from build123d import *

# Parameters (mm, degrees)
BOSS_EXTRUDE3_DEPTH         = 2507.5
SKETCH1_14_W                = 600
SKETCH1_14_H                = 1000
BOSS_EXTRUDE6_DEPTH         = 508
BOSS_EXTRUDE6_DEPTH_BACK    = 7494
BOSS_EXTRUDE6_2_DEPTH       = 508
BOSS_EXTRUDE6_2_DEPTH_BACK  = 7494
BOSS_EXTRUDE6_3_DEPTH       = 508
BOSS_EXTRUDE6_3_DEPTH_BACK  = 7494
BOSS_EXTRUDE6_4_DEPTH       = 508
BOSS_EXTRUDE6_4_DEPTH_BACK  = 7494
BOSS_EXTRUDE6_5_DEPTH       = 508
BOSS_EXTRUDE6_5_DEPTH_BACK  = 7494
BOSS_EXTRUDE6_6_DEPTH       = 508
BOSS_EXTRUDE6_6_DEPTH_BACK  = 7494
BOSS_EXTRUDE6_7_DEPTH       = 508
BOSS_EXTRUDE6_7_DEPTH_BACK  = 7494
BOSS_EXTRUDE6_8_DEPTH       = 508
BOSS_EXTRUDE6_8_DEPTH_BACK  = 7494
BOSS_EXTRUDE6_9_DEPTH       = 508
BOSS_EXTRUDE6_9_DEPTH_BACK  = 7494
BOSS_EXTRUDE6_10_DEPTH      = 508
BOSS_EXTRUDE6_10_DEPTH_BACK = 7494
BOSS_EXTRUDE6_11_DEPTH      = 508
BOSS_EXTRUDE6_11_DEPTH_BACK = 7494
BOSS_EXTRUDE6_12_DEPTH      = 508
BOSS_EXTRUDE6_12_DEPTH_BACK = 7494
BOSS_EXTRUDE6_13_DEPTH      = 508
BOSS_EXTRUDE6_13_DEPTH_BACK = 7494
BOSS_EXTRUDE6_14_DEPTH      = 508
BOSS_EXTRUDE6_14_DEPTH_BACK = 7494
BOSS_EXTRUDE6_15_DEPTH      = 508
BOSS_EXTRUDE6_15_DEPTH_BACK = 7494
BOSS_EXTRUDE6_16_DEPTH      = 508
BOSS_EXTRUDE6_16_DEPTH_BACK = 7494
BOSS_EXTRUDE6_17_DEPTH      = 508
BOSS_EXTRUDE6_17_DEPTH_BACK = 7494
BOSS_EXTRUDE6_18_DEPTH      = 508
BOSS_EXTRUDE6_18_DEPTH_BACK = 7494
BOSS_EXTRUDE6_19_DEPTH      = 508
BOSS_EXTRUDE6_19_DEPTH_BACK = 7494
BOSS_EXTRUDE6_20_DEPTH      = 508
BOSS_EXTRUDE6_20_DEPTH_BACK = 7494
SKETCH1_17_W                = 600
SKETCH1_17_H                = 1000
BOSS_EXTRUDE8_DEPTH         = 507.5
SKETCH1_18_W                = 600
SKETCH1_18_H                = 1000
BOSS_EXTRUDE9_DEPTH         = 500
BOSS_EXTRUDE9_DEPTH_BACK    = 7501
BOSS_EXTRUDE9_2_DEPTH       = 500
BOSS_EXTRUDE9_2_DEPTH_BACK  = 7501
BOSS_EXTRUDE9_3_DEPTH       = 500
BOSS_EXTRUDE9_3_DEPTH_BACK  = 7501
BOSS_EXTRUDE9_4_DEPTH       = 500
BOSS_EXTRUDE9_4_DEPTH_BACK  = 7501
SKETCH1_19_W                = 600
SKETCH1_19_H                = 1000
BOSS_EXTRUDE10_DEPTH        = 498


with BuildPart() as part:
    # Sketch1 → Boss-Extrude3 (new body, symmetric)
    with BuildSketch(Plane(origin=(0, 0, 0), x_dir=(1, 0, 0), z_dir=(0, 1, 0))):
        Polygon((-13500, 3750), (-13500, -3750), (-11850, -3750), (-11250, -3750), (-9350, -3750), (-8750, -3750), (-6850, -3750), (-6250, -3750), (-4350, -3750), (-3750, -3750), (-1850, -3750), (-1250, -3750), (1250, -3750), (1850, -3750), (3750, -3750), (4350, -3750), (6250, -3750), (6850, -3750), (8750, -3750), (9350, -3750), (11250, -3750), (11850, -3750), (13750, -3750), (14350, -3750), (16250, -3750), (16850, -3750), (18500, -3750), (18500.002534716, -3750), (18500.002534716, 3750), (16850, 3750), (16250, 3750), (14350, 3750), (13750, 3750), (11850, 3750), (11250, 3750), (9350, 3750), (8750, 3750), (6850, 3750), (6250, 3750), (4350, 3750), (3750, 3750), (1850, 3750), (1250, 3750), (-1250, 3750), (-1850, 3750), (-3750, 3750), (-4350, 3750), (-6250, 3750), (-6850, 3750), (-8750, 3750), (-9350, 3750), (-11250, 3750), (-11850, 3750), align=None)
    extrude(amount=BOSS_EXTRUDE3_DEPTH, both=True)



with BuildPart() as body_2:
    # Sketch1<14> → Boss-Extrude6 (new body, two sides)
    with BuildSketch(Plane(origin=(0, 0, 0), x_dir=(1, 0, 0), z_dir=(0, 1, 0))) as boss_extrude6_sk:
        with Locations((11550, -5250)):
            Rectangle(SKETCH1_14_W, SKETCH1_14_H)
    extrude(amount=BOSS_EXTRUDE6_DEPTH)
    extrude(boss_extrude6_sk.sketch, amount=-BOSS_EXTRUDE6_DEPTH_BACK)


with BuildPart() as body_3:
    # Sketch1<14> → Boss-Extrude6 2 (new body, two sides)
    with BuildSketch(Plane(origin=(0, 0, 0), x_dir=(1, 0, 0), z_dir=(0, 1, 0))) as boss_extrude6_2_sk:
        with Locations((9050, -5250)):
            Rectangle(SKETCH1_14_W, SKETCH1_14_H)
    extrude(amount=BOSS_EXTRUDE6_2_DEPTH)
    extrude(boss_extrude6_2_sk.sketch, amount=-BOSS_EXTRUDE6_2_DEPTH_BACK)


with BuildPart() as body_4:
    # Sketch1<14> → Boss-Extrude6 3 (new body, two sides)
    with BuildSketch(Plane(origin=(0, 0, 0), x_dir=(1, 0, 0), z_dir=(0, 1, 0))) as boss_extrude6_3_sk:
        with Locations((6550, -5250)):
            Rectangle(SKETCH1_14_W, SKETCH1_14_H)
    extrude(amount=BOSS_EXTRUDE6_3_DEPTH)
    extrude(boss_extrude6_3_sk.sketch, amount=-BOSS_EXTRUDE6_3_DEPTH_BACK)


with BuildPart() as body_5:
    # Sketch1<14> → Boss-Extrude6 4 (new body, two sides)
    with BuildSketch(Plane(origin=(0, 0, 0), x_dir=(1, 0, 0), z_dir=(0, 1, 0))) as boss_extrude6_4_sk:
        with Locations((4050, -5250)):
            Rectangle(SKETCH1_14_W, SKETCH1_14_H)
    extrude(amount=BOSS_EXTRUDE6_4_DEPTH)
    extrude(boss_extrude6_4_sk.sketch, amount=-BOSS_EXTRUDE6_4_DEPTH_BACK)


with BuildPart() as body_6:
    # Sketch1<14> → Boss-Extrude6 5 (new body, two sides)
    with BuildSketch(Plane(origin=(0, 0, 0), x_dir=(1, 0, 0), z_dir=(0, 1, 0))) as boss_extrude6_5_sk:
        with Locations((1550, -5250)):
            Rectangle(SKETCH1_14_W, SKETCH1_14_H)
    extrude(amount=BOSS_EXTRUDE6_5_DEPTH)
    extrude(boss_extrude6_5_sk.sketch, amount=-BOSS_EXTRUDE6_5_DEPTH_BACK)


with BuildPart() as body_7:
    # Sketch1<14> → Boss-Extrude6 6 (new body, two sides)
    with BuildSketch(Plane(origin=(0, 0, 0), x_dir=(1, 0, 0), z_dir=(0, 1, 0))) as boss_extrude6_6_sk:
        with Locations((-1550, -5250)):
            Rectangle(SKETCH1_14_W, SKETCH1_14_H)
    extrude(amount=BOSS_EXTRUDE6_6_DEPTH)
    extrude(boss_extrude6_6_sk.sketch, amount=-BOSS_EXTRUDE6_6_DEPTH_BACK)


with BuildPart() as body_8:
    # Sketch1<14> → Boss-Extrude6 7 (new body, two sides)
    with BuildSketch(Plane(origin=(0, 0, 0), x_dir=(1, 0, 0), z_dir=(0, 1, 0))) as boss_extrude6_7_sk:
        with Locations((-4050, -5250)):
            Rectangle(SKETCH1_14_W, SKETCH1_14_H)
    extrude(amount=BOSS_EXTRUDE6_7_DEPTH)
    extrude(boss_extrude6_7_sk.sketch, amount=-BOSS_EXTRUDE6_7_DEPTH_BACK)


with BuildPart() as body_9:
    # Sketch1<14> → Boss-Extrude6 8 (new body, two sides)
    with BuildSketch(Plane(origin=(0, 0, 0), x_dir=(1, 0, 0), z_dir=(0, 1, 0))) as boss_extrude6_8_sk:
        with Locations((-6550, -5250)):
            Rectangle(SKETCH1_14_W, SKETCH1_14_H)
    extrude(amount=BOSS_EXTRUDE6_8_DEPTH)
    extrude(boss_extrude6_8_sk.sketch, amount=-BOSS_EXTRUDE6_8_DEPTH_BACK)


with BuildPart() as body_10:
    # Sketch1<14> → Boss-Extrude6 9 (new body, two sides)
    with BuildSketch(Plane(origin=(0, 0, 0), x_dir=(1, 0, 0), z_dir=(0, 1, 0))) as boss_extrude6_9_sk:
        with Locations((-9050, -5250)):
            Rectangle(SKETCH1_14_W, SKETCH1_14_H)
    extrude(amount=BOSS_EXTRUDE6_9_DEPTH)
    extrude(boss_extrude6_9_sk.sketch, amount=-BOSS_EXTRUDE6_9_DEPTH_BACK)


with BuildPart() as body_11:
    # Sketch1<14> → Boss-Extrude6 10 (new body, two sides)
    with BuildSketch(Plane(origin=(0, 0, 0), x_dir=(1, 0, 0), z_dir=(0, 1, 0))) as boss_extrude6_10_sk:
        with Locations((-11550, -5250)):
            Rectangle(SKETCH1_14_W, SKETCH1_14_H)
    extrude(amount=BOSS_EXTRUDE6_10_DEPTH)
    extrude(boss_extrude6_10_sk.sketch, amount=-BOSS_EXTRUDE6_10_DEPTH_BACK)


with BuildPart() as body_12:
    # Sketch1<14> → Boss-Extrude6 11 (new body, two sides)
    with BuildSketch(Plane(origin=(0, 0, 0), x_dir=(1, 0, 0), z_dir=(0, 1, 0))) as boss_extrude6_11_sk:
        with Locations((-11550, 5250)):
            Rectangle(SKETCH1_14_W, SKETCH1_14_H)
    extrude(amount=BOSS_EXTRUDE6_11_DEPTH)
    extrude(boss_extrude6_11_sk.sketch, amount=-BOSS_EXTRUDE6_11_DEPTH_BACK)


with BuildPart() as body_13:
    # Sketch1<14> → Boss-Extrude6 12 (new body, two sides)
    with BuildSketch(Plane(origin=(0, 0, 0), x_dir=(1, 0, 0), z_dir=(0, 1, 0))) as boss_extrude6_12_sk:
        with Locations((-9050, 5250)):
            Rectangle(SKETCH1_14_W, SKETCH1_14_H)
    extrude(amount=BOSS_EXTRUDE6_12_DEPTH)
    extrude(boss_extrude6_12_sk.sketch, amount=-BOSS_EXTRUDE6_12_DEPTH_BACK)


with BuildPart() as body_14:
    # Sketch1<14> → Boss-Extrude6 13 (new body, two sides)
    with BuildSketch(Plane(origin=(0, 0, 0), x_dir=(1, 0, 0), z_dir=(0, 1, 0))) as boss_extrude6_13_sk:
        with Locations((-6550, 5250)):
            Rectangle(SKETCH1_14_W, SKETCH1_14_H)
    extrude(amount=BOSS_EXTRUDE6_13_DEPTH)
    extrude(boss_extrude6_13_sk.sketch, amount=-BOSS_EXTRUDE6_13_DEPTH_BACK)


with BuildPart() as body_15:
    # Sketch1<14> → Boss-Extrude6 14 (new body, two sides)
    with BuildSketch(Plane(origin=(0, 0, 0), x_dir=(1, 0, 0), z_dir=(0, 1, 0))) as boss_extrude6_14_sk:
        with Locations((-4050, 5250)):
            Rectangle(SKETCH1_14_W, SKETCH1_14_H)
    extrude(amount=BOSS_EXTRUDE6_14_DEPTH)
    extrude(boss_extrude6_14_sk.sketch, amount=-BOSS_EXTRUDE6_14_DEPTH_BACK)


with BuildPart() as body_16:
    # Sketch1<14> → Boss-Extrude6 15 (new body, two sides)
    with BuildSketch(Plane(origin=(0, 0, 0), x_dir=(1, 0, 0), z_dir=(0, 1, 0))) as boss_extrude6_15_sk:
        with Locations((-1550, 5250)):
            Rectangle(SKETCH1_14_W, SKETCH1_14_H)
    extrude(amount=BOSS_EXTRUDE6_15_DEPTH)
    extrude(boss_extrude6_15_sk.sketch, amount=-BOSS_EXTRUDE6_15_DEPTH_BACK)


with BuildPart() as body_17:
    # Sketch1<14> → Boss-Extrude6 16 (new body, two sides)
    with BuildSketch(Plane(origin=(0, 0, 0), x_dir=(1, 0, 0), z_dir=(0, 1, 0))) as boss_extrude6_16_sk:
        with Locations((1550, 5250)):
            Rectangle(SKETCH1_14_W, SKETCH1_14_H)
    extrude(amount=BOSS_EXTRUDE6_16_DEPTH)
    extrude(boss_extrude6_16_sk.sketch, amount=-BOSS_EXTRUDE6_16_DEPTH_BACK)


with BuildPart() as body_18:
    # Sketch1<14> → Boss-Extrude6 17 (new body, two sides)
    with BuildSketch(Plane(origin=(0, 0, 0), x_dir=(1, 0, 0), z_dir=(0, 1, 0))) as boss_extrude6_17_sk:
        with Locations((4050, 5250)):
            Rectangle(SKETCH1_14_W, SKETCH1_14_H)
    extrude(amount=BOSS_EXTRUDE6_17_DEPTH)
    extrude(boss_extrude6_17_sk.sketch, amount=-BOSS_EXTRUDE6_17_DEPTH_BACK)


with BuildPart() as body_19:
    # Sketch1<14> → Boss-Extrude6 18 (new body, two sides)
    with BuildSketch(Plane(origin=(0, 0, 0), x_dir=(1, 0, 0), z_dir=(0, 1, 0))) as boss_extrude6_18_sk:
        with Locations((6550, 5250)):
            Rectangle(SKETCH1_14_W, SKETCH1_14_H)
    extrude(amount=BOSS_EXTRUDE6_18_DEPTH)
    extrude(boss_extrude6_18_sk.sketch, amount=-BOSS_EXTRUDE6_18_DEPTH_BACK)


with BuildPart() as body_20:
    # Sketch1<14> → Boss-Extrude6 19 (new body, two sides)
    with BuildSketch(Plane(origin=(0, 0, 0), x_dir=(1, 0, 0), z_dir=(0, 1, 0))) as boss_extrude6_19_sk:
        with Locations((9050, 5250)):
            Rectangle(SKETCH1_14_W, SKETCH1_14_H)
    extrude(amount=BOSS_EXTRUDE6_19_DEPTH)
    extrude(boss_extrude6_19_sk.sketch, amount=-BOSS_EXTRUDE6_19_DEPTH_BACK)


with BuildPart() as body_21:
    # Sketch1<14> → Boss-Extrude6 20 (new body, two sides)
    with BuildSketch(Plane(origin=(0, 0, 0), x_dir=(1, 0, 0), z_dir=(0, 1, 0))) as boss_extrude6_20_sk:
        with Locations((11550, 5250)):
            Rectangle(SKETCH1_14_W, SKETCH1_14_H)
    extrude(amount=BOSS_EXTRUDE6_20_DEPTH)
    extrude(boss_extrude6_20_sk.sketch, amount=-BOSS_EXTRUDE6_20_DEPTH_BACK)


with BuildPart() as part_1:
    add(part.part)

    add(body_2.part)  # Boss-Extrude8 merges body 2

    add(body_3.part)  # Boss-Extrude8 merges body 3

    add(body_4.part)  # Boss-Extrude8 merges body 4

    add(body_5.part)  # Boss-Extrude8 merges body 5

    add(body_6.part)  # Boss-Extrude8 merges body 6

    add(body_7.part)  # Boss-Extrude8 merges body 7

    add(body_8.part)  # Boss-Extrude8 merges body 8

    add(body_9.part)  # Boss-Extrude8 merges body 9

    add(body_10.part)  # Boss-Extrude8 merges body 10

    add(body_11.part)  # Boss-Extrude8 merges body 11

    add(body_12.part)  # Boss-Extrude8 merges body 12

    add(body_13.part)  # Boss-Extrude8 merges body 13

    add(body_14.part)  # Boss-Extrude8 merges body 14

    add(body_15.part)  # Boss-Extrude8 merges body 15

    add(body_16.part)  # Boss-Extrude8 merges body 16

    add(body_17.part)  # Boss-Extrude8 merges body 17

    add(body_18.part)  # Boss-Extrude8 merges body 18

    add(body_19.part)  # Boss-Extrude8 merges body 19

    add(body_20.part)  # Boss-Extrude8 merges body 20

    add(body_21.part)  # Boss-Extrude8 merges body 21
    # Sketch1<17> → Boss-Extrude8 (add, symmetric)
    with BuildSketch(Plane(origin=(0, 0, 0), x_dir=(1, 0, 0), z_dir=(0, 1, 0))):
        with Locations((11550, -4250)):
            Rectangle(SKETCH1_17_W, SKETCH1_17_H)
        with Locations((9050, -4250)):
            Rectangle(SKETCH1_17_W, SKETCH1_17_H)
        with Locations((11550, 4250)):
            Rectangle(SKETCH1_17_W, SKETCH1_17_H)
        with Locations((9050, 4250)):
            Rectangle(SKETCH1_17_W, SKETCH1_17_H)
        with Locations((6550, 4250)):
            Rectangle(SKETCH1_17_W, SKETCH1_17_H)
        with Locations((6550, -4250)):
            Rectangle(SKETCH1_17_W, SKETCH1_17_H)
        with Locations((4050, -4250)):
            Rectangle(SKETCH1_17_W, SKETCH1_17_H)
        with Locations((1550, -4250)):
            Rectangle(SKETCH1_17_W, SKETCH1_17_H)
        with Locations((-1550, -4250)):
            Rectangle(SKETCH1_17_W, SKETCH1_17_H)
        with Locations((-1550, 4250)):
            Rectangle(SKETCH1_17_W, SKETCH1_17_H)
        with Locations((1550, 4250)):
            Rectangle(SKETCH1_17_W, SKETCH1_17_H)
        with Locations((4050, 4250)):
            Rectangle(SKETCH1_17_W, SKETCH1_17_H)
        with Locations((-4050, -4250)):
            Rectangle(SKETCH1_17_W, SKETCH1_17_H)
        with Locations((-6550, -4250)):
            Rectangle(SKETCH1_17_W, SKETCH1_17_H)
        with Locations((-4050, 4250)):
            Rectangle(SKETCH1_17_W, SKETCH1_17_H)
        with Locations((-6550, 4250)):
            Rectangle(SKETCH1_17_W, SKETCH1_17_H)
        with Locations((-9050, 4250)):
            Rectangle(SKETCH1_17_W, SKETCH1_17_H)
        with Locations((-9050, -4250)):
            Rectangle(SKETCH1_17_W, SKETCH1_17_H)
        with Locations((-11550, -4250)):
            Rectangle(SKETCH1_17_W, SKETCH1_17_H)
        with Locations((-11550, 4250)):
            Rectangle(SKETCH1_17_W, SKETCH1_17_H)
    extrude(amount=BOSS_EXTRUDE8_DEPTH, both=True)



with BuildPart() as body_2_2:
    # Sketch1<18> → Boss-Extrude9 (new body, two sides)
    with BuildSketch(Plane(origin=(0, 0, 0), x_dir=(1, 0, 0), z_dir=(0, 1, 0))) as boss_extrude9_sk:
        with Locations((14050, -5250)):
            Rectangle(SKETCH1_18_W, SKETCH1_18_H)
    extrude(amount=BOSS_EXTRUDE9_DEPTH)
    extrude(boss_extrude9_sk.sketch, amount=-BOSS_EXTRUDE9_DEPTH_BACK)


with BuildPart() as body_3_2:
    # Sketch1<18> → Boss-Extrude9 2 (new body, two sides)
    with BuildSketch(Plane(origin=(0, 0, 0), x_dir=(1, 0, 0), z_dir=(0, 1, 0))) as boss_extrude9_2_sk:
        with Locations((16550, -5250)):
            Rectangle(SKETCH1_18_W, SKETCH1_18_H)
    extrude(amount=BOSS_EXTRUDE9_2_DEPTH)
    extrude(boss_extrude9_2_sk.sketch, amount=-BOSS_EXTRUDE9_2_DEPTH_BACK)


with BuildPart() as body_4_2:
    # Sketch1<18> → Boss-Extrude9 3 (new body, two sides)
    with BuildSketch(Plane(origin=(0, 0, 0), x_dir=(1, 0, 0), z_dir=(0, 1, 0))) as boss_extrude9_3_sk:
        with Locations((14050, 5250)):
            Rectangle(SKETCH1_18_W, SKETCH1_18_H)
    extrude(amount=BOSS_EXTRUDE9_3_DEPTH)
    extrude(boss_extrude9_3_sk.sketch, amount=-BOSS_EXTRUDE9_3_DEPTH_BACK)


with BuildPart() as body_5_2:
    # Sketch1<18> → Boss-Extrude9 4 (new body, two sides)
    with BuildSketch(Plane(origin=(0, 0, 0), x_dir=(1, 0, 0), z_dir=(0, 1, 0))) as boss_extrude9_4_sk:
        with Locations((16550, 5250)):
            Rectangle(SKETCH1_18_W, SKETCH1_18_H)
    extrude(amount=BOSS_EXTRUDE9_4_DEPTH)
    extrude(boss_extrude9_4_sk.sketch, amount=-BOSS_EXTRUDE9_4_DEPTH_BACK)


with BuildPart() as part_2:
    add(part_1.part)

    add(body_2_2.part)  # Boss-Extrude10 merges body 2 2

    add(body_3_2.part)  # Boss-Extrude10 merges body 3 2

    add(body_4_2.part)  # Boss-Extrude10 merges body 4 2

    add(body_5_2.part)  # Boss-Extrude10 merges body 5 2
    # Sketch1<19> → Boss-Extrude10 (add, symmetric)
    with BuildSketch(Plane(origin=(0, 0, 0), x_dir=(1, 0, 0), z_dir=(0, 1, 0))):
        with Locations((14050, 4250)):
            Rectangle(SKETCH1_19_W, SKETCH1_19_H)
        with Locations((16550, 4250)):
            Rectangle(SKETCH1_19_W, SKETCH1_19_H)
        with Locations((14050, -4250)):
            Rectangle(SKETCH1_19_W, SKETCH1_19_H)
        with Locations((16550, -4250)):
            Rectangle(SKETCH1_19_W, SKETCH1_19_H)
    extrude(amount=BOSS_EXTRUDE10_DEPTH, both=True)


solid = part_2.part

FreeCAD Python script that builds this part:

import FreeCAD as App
import Part
import Sketcher
from FreeCAD import Vector
Q = App.Units.Quantity


def add_polygon(sketch, points):
    """Adds a closed chain of lines whose ends are joined by coincident constraints."""
    first, n = sketch.GeometryCount, len(points)
    for a, b in zip(points, points[1:] + points[:1]):
        sketch.addGeometry(Part.LineSegment(App.Vector(*a, 0), App.Vector(*b, 0)), False)
    for i in range(n):
        sketch.addConstraint(Sketcher.Constraint("Coincident", first + i, 2, first + (i + 1) % n, 1))

doc = App.newDocument("Part")
body = doc.addObject("PartDesign::Body", "Body")

sketch1 = body.newObject("Sketcher::SketchObject", "Sketch")
sketch1.AttachmentSupport = (doc.getObject("XZ_Plane"), [""])
sketch1.MapMode = "FlatFace"
add_polygon(sketch1, [(-13500, -3750), (-13500, 3750), (18500.002535, 3750), (18500.002535, -3750)])
sketch1.addConstraint([
    Sketcher.Constraint("Vertical", 0),
    Sketcher.Constraint("Horizontal", 1),
    Sketcher.Constraint("Vertical", 2),
    Sketcher.Constraint("Horizontal", 3),
    Sketcher.Constraint("DistanceY", 0, 1, 0, 2, Q("7500 mm")),
    Sketcher.Constraint("DistanceX", 0, 2, -1, 1, Q("13500 mm")),
    Sketcher.Constraint("DistanceY", -1, 1, 0, 2, Q("3750 mm")),
    Sketcher.Constraint("DistanceX", 1, 1, 1, 2, Q("32000.002535 mm")),
])
pad1 = body.newObject("PartDesign::Pad", "Pad")
pad1.Profile = sketch1
pad1.Length = 5015
pad1.Midplane = True
body2 = doc.addObject("PartDesign::Body", "Body001")

sketch2 = body2.newObject("Sketcher::SketchObject", "Sketch001")
sketch2.AttachmentSupport = (doc.getObject("XZ_Plane001"), [""])
sketch2.MapMode = "FlatFace"
add_polygon(sketch2, [(11250, 4750), (11250, 5750), (11850, 5750), (11850, 4750)])
sketch2.addConstraint([
    Sketcher.Constraint("Vertical", 0),
    Sketcher.Constraint("Horizontal", 1),
    Sketcher.Constraint("Vertical", 2),
    Sketcher.Constraint("Horizontal", 3),
    Sketcher.Constraint("DistanceX", 1, 1, 1, 2, Q("600 mm")),
    Sketcher.Constraint("DistanceY", 0, 1, 0, 2, Q("1000 mm")),
    Sketcher.Constraint("DistanceX", -1, 1, 0, 2, Q("11250 mm")),
    Sketcher.Constraint("DistanceY", -1, 1, 0, 2, Q("5750 mm")),
])
pad2 = body2.newObject("PartDesign::Pad", "Pad001")
pad2.Profile = sketch2
pad2.Type = "TwoLengths"
pad2.Length = 508
pad2.Length2 = 7494
pad2.Reversed = True
body3 = doc.addObject("PartDesign::Body", "Body002")

sketch3 = body3.newObject("Sketcher::SketchObject", "Sketch002")
sketch3.AttachmentSupport = (doc.getObject("XZ_Plane002"), [""])
sketch3.MapMode = "FlatFace"
add_polygon(sketch3, [(8750, 4750), (8750, 5750), (9350, 5750), (9350, 4750)])
sketch3.addConstraint([
    Sketcher.Constraint("Vertical", 0),
    Sketcher.Constraint("Horizontal", 1),
    Sketcher.Constraint("Vertical", 2),
    Sketcher.Constraint("Horizontal", 3),
    Sketcher.Constraint("DistanceX", 1, 1, 1, 2, Q("600 mm")),
    Sketcher.Constraint("DistanceY", 0, 1, 0, 2, Q("1000 mm")),
    Sketcher.Constraint("DistanceX", -1, 1, 0, 2, Q("8750 mm")),
    Sketcher.Constraint("DistanceY", -1, 1, 0, 2, Q("5750 mm")),
])
pad3 = body3.newObject("PartDesign::Pad", "Pad002")
pad3.Profile = sketch3
pad3.Type = "TwoLengths"
pad3.Length = 508
pad3.Length2 = 7494
pad3.Reversed = True
body4 = doc.addObject("PartDesign::Body", "Body003")

sketch4 = body4.newObject("Sketcher::SketchObject", "Sketch003")
sketch4.AttachmentSupport = (doc.getObject("XZ_Plane003"), [""])
sketch4.MapMode = "FlatFace"
add_polygon(sketch4, [(6250, 4750), (6250, 5750), (6850, 5750), (6850, 4750)])
sketch4.addConstraint([
    Sketcher.Constraint("Vertical", 0),
    Sketcher.Constraint("Horizontal", 1),
    Sketcher.Constraint("Vertical", 2),
    Sketcher.Constraint("Horizontal", 3),
    Sketcher.Constraint("DistanceX", 1, 1, 1, 2, Q("600 mm")),
    Sketcher.Constraint("DistanceY", 0, 1, 0, 2, Q("1000 mm")),
    Sketcher.Constraint("DistanceX", -1, 1, 0, 2, Q("6250 mm")),
    Sketcher.Constraint("DistanceY", -1, 1, 0, 2, Q("5750 mm")),
])
pad4 = body4.newObject("PartDesign::Pad", "Pad003")
pad4.Profile = sketch4
pad4.Type = "TwoLengths"
pad4.Length = 508
pad4.Length2 = 7494
pad4.Reversed = True
body5 = doc.addObject("PartDesign::Body", "Body004")

sketch5 = body5.newObject("Sketcher::SketchObject", "Sketch004")
sketch5.AttachmentSupport = (doc.getObject("XZ_Plane004"), [""])
sketch5.MapMode = "FlatFace"
add_polygon(sketch5, [(3750, 4750), (3750, 5750), (4350, 5750), (4350, 4750)])
sketch5.addConstraint([
    Sketcher.Constraint("Vertical", 0),
    Sketcher.Constraint("Horizontal", 1),
    Sketcher.Constraint("Vertical", 2),
    Sketcher.Constraint("Horizontal", 3),
    Sketcher.Constraint("DistanceX", 1, 1, 1, 2, Q("600 mm")),
    Sketcher.Constraint("DistanceY", 0, 1, 0, 2, Q("1000 mm")),
    Sketcher.Constraint("DistanceX", -1, 1, 0, 2, Q("3750 mm")),
    Sketcher.Constraint("DistanceY", -1, 1, 0, 2, Q("5750 mm")),
])
pad5 = body5.newObject("PartDesign::Pad", "Pad004")
pad5.Profile = sketch5
pad5.Type = "TwoLengths"
pad5.Length = 508
pad5.Length2 = 7494
pad5.Reversed = True
body6 = doc.addObject("PartDesign::Body", "Body005")

sketch6 = body6.newObject("Sketcher::SketchObject", "Sketch005")
sketch6.AttachmentSupport = (doc.getObject("XZ_Plane005"), [""])
sketch6.MapMode = "FlatFace"
add_polygon(sketch6, [(1250, 4750), (1250, 5750), (1850, 5750), (1850, 4750)])
sketch6.addConstraint([
    Sketcher.Constraint("Vertical", 0),
    Sketcher.Constraint("Horizontal", 1),
    Sketcher.Constraint("Vertical", 2),
    Sketcher.Constraint("Horizontal", 3),
    Sketcher.Constraint("DistanceX", 1, 1, 1, 2, Q("600 mm")),
    Sketcher.Constraint("DistanceY", 0, 1, 0, 2, Q("1000 mm")),
    Sketcher.Constraint("DistanceX", -1, 1, 0, 2, Q("1250 mm")),
    Sketcher.Constraint("DistanceY", -1, 1, 0, 2, Q("5750 mm")),
])
pad6 = body6.newObject("PartDesign::Pad", "Pad005")
pad6.Profile = sketch6
pad6.Type = "TwoLengths"
pad6.Length = 508
pad6.Length2 = 7494
pad6.Reversed = True
body7 = doc.addObject("PartDesign::Body", "Body006")

sketch7 = body7.newObject("Sketcher::SketchObject", "Sketch006")
sketch7.AttachmentSupport = (doc.getObject("XZ_Plane006"), [""])
sketch7.MapMode = "FlatFace"
add_polygon(sketch7, [(-1850, 4750), (-1850, 5750), (-1250, 5750), (-1250, 4750)])
sketch7.addConstraint([
    Sketcher.Constraint("Vertical", 0),
    Sketcher.Constraint("Horizontal", 1),
    Sketcher.Constraint("Vertical", 2),
    Sketcher.Constraint("Horizontal", 3),
    Sketcher.Constraint("DistanceX", 1, 1, 1, 2, Q("600 mm")),
    Sketcher.Constraint("DistanceY", 0, 1, 0, 2, Q("1000 mm")),
    Sketcher.Constraint("DistanceX", 0, 2, -1, 1, Q("1850 mm")),
    Sketcher.Constraint("DistanceY", -1, 1, 0, 2, Q("5750 mm")),
])
pad7 = body7.newObject("PartDesign::Pad", "Pad006")
pad7.Profile = sketch7
pad7.Type = "TwoLengths"
pad7.Length = 508
pad7.Length2 = 7494
pad7.Reversed = True
body8 = doc.addObject("PartDesign::Body", "Body007")

sketch8 = body8.newObject("Sketcher::SketchObject", "Sketch007")
sketch8.AttachmentSupport = (doc.getObject("XZ_Plane007"), [""])
sketch8.MapMode = "FlatFace"
add_polygon(sketch8, [(-4350, 4750), (-4350, 5750), (-3750, 5750), (-3750, 4750)])
sketch8.addConstraint([
    Sketcher.Constraint("Vertical", 0),
    Sketcher.Constraint("Horizontal", 1),
    Sketcher.Constraint("Vertical", 2),
    Sketcher.Constraint("Horizontal", 3),
    Sketcher.Constraint("DistanceX", 1, 1, 1, 2, Q("600 mm")),
    Sketcher.Constraint("DistanceY", 0, 1, 0, 2, Q("1000 mm")),
    Sketcher.Constraint("DistanceX", 0, 2, -1, 1, Q("4350 mm")),
    Sketcher.Constraint("DistanceY", -1, 1, 0, 2, Q("5750 mm")),
])
pad8 = body8.newObject("PartDesign::Pad", "Pad007")
pad8.Profile = sketch8
pad8.Type = "TwoLengths"
pad8.Length = 508
pad8.Length2 = 7494
pad8.Reversed = True
body9 = doc.addObject("PartDesign::Body", "Body008")

sketch9 = body9.newObject("Sketcher::SketchObject", "Sketch008")
sketch9.AttachmentSupport = (doc.getObject("XZ_Plane008"), [""])
sketch9.MapMode = "FlatFace"
add_polygon(sketch9, [(-6850, 4750), (-6850, 5750), (-6250, 5750), (-6250, 4750)])
sketch9.addConstraint([
    Sketcher.Constraint("Vertical", 0),
    Sketcher.Constraint("Horizontal", 1),
    Sketcher.Constraint("Vertical", 2),
    Sketcher.Constraint("Horizontal", 3),
    Sketcher.Constraint("DistanceX", 1, 1, 1, 2, Q("600 mm")),
    Sketcher.Constraint("DistanceY", 0, 1, 0, 2, Q("1000 mm")),
    Sketcher.Constraint("DistanceX", 0, 2, -1, 1, Q("6850 mm")),
    Sketcher.Constraint("DistanceY", -1, 1, 0, 2, Q("5750 mm")),
])
pad9 = body9.newObject("PartDesign::Pad", "Pad008")
pad9.Profile = sketch9
pad9.Type = "TwoLengths"
pad9.Length = 508
pad9.Length2 = 7494
pad9.Reversed = True
body10 = doc.addObject("PartDesign::Body", "Body009")

sketch10 = body10.newObject("Sketcher::SketchObject", "Sketch009")
sketch10.AttachmentSupport = (doc.getObject("XZ_Plane009"), [""])
sketch10.MapMode = "FlatFace"
add_polygon(sketch10, [(-9350, 4750), (-9350, 5750), (-8750, 5750), (-8750, 4750)])
sketch10.addConstraint([
    Sketcher.Constraint("Vertical", 0),
    Sketcher.Constraint("Horizontal", 1),
    Sketcher.Constraint("Vertical", 2),
    Sketcher.Constraint("Horizontal", 3),
    Sketcher.Constraint("DistanceX", 1, 1, 1, 2, Q("600 mm")),
    Sketcher.Constraint("DistanceY", 0, 1, 0, 2, Q("1000 mm")),
    Sketcher.Constraint("DistanceX", 0, 2, -1, 1, Q("9350 mm")),
    Sketcher.Constraint("DistanceY", -1, 1, 0, 2, Q("5750 mm")),
])
pad10 = body10.newObject("PartDesign::Pad", "Pad009")
pad10.Profile = sketch10
pad10.Type = "TwoLengths"
pad10.Length = 508
pad10.Length2 = 7494
pad10.Reversed = True
body11 = doc.addObject("PartDesign::Body", "Body010")

sketch11 = body11.newObject("Sketcher::SketchObject", "Sketch010")
sketch11.AttachmentSupport = (doc.getObject("XZ_Plane010"), [""])
sketch11.MapMode = "FlatFace"
add_polygon(sketch11, [(-11850, 4750), (-11850, 5750), (-11250, 5750), (-11250, 4750)])
sketch11.addConstraint([
    Sketcher.Constraint("Vertical", 0),
    Sketcher.Constraint("Horizontal", 1),
    Sketcher.Constraint("Vertical", 2),
    Sketcher.Constraint("Horizontal", 3),
    Sketcher.Constraint("DistanceX", 1, 1, 1, 2, Q("600 mm")),
    Sketcher.Constraint("DistanceY", 0, 1, 0, 2, Q("1000 mm")),
    Sketcher.Constraint("DistanceX", 0, 2, -1, 1, Q("11850 mm")),
    Sketcher.Constraint("DistanceY", -1, 1, 0, 2, Q("5750 mm")),
])
pad11 = body11.newObject("PartDesign::Pad", "Pad010")
pad11.Profile = sketch11
pad11.Type = "TwoLengths"
pad11.Length = 508
pad11.Length2 = 7494
pad11.Reversed = True
body12 = doc.addObject("PartDesign::Body", "Body011")

sketch12 = body12.newObject("Sketcher::SketchObject", "Sketch011")
sketch12.AttachmentSupport = (doc.getObject("XZ_Plane011"), [""])
sketch12.MapMode = "FlatFace"
add_polygon(sketch12, [(-11850, -5750), (-11850, -4750), (-11250, -4750), (-11250, -5750)])
sketch12.addConstraint([
    Sketcher.Constraint("Vertical", 0),
    Sketcher.Constraint("Horizontal", 1),
    Sketcher.Constraint("Vertical", 2),
    Sketcher.Constraint("Horizontal", 3),
    Sketcher.Constraint("DistanceX", 1, 1, 1, 2, Q("600 mm")),
    Sketcher.Constraint("DistanceY", 0, 1, 0, 2, Q("1000 mm")),
    Sketcher.Constraint("DistanceX", 0, 2, -1, 1, Q("11850 mm")),
    Sketcher.Constraint("DistanceY", 0, 2, -1, 1, Q("4750 mm")),
])
pad12 = body12.newObject("PartDesign::Pad", "Pad011")
pad12.Profile = sketch12
pad12.Type = "TwoLengths"
pad12.Length = 508
pad12.Length2 = 7494
pad12.Reversed = True
body13 = doc.addObject("PartDesign::Body", "Body012")

sketch13 = body13.newObject("Sketcher::SketchObject", "Sketch012")
sketch13.AttachmentSupport = (doc.getObject("XZ_Plane012"), [""])
sketch13.MapMode = "FlatFace"
add_polygon(sketch13, [(-9350, -5750), (-9350, -4750), (-8750, -4750), (-8750, -5750)])
sketch13.addConstraint([
    Sketcher.Constraint("Vertical", 0),
    Sketcher.Constraint("Horizontal", 1),
    Sketcher.Constraint("Vertical", 2),
    Sketcher.Constraint("Horizontal", 3),
    Sketcher.Constraint("DistanceX", 1, 1, 1, 2, Q("600 mm")),
    Sketcher.Constraint("DistanceY", 0, 1, 0, 2, Q("1000 mm")),
    Sketcher.Constraint("DistanceX", 0, 2, -1, 1, Q("9350 mm")),
    Sketcher.Constraint("DistanceY", 0, 2, -1, 1, Q("4750 mm")),
])
pad13 = body13.newObject("PartDesign::Pad", "Pad012")
pad13.Profile = sketch13
pad13.Type = "TwoLengths"
pad13.Length = 508
pad13.Length2 = 7494
pad13.Reversed = True
body14 = doc.addObject("PartDesign::Body", "Body013")

sketch14 = body14.newObject("Sketcher::SketchObject", "Sketch013")
sketch14.AttachmentSupport = (doc.getObject("XZ_Plane013"), [""])
sketch14.MapMode = "FlatFace"
add_polygon(sketch14, [(-6850, -5750), (-6850, -4750), (-6250, -4750), (-6250, -5750)])
sketch14.addConstraint([
    Sketcher.Constraint("Vertical", 0),
    Sketcher.Constraint("Horizontal", 1),
    Sketcher.Constraint("Vertical", 2),
    Sketcher.Constraint("Horizontal", 3),
    Sketcher.Constraint("DistanceX", 1, 1, 1, 2, Q("600 mm")),
    Sketcher.Constraint("DistanceY", 0, 1, 0, 2, Q("1000 mm")),
    Sketcher.Constraint("DistanceX", 0, 2, -1, 1, Q("6850 mm")),
    Sketcher.Constraint("DistanceY", 0, 2, -1, 1, Q("4750 mm")),
])
pad14 = body14.newObject("PartDesign::Pad", "Pad013")
pad14.Profile = sketch14
pad14.Type = "TwoLengths"
pad14.Length = 508
pad14.Length2 = 7494
pad14.Reversed = True
body15 = doc.addObject("PartDesign::Body", "Body014")

sketch15 = body15.newObject("Sketcher::SketchObject", "Sketch014")
sketch15.AttachmentSupport = (doc.getObject("XZ_Plane014"), [""])
sketch15.MapMode = "FlatFace"
add_polygon(sketch15, [(-4350, -5750), (-4350, -4750), (-3750, -4750), (-3750, -5750)])
sketch15.addConstraint([
    Sketcher.Constraint("Vertical", 0),
    Sketcher.Constraint("Horizontal", 1),
    Sketcher.Constraint("Vertical", 2),
    Sketcher.Constraint("Horizontal", 3),
    Sketcher.Constraint("DistanceX", 1, 1, 1, 2, Q("600 mm")),
    Sketcher.Constraint("DistanceY", 0, 1, 0, 2, Q("1000 mm")),
    Sketcher.Constraint("DistanceX", 0, 2, -1, 1, Q("4350 mm")),
    Sketcher.Constraint("DistanceY", 0, 2, -1, 1, Q("4750 mm")),
])
pad15 = body15.newObject("PartDesign::Pad", "Pad014")
pad15.Profile = sketch15
pad15.Type = "TwoLengths"
pad15.Length = 508
pad15.Length2 = 7494
pad15.Reversed = True
body16 = doc.addObject("PartDesign::Body", "Body015")

sketch16 = body16.newObject("Sketcher::SketchObject", "Sketch015")
sketch16.AttachmentSupport = (doc.getObject("XZ_Plane015"), [""])
sketch16.MapMode = "FlatFace"
add_polygon(sketch16, [(-1850, -5750), (-1850, -4750), (-1250, -4750), (-1250, -5750)])
sketch16.addConstraint([
    Sketcher.Constraint("Vertical", 0),
    Sketcher.Constraint("Horizontal", 1),
    Sketcher.Constraint("Vertical", 2),
    Sketcher.Constraint("Horizontal", 3),
    Sketcher.Constraint("DistanceX", 1, 1, 1, 2, Q("600 mm")),
    Sketcher.Constraint("DistanceY", 0, 1, 0, 2, Q("1000 mm")),
    Sketcher.Constraint("DistanceX", 0, 2, -1, 1, Q("1850 mm")),
    Sketcher.Constraint("DistanceY", 0, 2, -1, 1, Q("4750 mm")),
])
pad16 = body16.newObject("PartDesign::Pad", "Pad015")
pad16.Profile = sketch16
pad16.Type = "TwoLengths"
pad16.Length = 508
pad16.Length2 = 7494
pad16.Reversed = True
body17 = doc.addObject("PartDesign::Body", "Body016")

sketch17 = body17.newObject("Sketcher::SketchObject", "Sketch016")
sketch17.AttachmentSupport = (doc.getObject("XZ_Plane016"), [""])
sketch17.MapMode = "FlatFace"
add_polygon(sketch17, [(1250, -5750), (1250, -4750), (1850, -4750), (1850, -5750)])
sketch17.addConstraint([
    Sketcher.Constraint("Vertical", 0),
    Sketcher.Constraint("Horizontal", 1),
    Sketcher.Constraint("Vertical", 2),
    Sketcher.Constraint("Horizontal", 3),
    Sketcher.Constraint("DistanceX", 1, 1, 1, 2, Q("600 mm")),
    Sketcher.Constraint("DistanceY", 0, 1, 0, 2, Q("1000 mm")),
    Sketcher.Constraint("DistanceX", -1, 1, 0, 2, Q("1250 mm")),
    Sketcher.Constraint("DistanceY", 0, 2, -1, 1, Q("4750 mm")),
])
pad17 = body17.newObject("PartDesign::Pad", "Pad016")
pad17.Profile = sketch17
pad17.Type = "TwoLengths"
pad17.Length = 508
pad17.Length2 = 7494
pad17.Reversed = True
body18 = doc.addObject("PartDesign::Body", "Body017")

sketch18 = body18.newObject("Sketcher::SketchObject", "Sketch017")
sketch18.AttachmentSupport = (doc.getObject("XZ_Plane017"), [""])
sketch18.MapMode = "FlatFace"
add_polygon(sketch18, [(3750, -5750), (3750, -4750), (4350, -4750), (4350, -5750)])
sketch18.addConstraint([
    Sketcher.Constraint("Vertical", 0),
    Sketcher.Constraint("Horizontal", 1),
    Sketcher.Constraint("Vertical", 2),
    Sketcher.Constraint("Horizontal", 3),
    Sketcher.Constraint("DistanceX", 1, 1, 1, 2, Q("600 mm")),
    Sketcher.Constraint("DistanceY", 0, 1, 0, 2, Q("1000 mm")),
    Sketcher.Constraint("DistanceX", -1, 1, 0, 2, Q("3750 mm")),
    Sketcher.Constraint("DistanceY", 0, 2, -1, 1, Q("4750 mm")),
])
pad18 = body18.newObject("PartDesign::Pad", "Pad017")
pad18.Profile = sketch18
pad18.Type = "TwoLengths"
pad18.Length = 508
pad18.Length2 = 7494
pad18.Reversed = True
body19 = doc.addObject("PartDesign::Body", "Body018")

sketch19 = body19.newObject("Sketcher::SketchObject", "Sketch018")
sketch19.AttachmentSupport = (doc.getObject("XZ_Plane018"), [""])
sketch19.MapMode = "FlatFace"
add_polygon(sketch19, [(6250, -5750), (6250, -4750), (6850, -4750), (6850, -5750)])
sketch19.addConstraint([
    Sketcher.Constraint("Vertical", 0),
    Sketcher.Constraint("Horizontal", 1),
    Sketcher.Constraint("Vertical", 2),
    Sketcher.Constraint("Horizontal", 3),
    Sketcher.Constraint("DistanceX", 1, 1, 1, 2, Q("600 mm")),
    Sketcher.Constraint("DistanceY", 0, 1, 0, 2, Q("1000 mm")),
    Sketcher.Constraint("DistanceX", -1, 1, 0, 2, Q("6250 mm")),
    Sketcher.Constraint("DistanceY", 0, 2, -1, 1, Q("4750 mm")),
])
pad19 = body19.newObject("PartDesign::Pad", "Pad018")
pad19.Profile = sketch19
pad19.Type = "TwoLengths"
pad19.Length = 508
pad19.Length2 = 7494
pad19.Reversed = True
body20 = doc.addObject("PartDesign::Body", "Body019")

sketch20 = body20.newObject("Sketcher::SketchObject", "Sketch019")
sketch20.AttachmentSupport = (doc.getObject("XZ_Plane019"), [""])
sketch20.MapMode = "FlatFace"
add_polygon(sketch20, [(8750, -5750), (8750, -4750), (9350, -4750), (9350, -5750)])
sketch20.addConstraint([
    Sketcher.Constraint("Vertical", 0),
    Sketcher.Constraint("Horizontal", 1),
    Sketcher.Constraint("Vertical", 2),
    Sketcher.Constraint("Horizontal", 3),
    Sketcher.Constraint("DistanceX", 1, 1, 1, 2, Q("600 mm")),
    Sketcher.Constraint("DistanceY", 0, 1, 0, 2, Q("1000 mm")),
    Sketcher.Constraint("DistanceX", -1, 1, 0, 2, Q("8750 mm")),
    Sketcher.Constraint("DistanceY", 0, 2, -1, 1, Q("4750 mm")),
])
pad20 = body20.newObject("PartDesign::Pad", "Pad019")
pad20.Profile = sketch20
pad20.Type = "TwoLengths"
pad20.Length = 508
pad20.Length2 = 7494
pad20.Reversed = True
body21 = doc.addObject("PartDesign::Body", "Body020")

sketch21 = body21.newObject("Sketcher::SketchObject", "Sketch020")
sketch21.AttachmentSupport = (doc.getObject("XZ_Plane020"), [""])
sketch21.MapMode = "FlatFace"
add_polygon(sketch21, [(11250, -5750), (11250, -4750), (11850, -4750), (11850, -5750)])
sketch21.addConstraint([
    Sketcher.Constraint("Vertical", 0),
    Sketcher.Constraint("Horizontal", 1),
    Sketcher.Constraint("Vertical", 2),
    Sketcher.Constraint("Horizontal", 3),
    Sketcher.Constraint("DistanceX", 1, 1, 1, 2, Q("600 mm")),
    Sketcher.Constraint("DistanceY", 0, 1, 0, 2, Q("1000 mm")),
    Sketcher.Constraint("DistanceX", -1, 1, 0, 2, Q("11250 mm")),
    Sketcher.Constraint("DistanceY", 0, 2, -1, 1, Q("4750 mm")),
])
pad21 = body21.newObject("PartDesign::Pad", "Pad020")
pad21.Profile = sketch21
pad21.Type = "TwoLengths"
pad21.Length = 508
pad21.Length2 = 7494
pad21.Reversed = True
body.AllowCompound = True
doc.recompute()

boolean = body.newObject("PartDesign::Boolean", "Boolean")
boolean.Type = "Fuse"
boolean.addObjects([body2])
doc.recompute()

boolean2 = body.newObject("PartDesign::Boolean", "Boolean001")
boolean2.Type = "Fuse"
boolean2.addObjects([body3])
doc.recompute()

boolean3 = body.newObject("PartDesign::Boolean", "Boolean002")
boolean3.Type = "Fuse"
boolean3.addObjects([body4])
doc.recompute()

boolean4 = body.newObject("PartDesign::Boolean", "Boolean003")
boolean4.Type = "Fuse"
boolean4.addObjects([body5])
doc.recompute()

boolean5 = body.newObject("PartDesign::Boolean", "Boolean004")
boolean5.Type = "Fuse"
boolean5.addObjects([body6])
doc.recompute()

boolean6 = body.newObject("PartDesign::Boolean", "Boolean005")
boolean6.Type = "Fuse"
boolean6.addObjects([body7])
doc.recompute()

boolean7 = body.newObject("PartDesign::Boolean", "Boolean006")
boolean7.Type = "Fuse"
boolean7.addObjects([body8])
doc.recompute()

boolean8 = body.newObject("PartDesign::Boolean", "Boolean007")
boolean8.Type = "Fuse"
boolean8.addObjects([body9])
doc.recompute()

boolean9 = body.newObject("PartDesign::Boolean", "Boolean008")
boolean9.Type = "Fuse"
boolean9.addObjects([body10])
doc.recompute()

boolean10 = body.newObject("PartDesign::Boolean", "Boolean009")
boolean10.Type = "Fuse"
boolean10.addObjects([body11])
doc.recompute()

boolean11 = body.newObject("PartDesign::Boolean", "Boolean010")
boolean11.Type = "Fuse"
boolean11.addObjects([body12])
doc.recompute()

boolean12 = body.newObject("PartDesign::Boolean", "Boolean011")
boolean12.Type = "Fuse"
boolean12.addObjects([body13])
doc.recompute()

boolean13 = body.newObject("PartDesign::Boolean", "Boolean012")
boolean13.Type = "Fuse"
boolean13.addObjects([body14])
doc.recompute()

boolean14 = body.newObject("PartDesign::Boolean", "Boolean013")
boolean14.Type = "Fuse"
boolean14.addObjects([body15])
doc.recompute()

boolean15 = body.newObject("PartDesign::Boolean", "Boolean014")
boolean15.Type = "Fuse"
boolean15.addObjects([body16])
doc.recompute()

boolean16 = body.newObject("PartDesign::Boolean", "Boolean015")
boolean16.Type = "Fuse"
boolean16.addObjects([body17])
doc.recompute()

boolean17 = body.newObject("PartDesign::Boolean", "Boolean016")
boolean17.Type = "Fuse"
boolean17.addObjects([body18])
doc.recompute()

boolean18 = body.newObject("PartDesign::Boolean", "Boolean017")
boolean18.Type = "Fuse"
boolean18.addObjects([body19])
doc.recompute()

boolean19 = body.newObject("PartDesign::Boolean", "Boolean018")
boolean19.Type = "Fuse"
boolean19.addObjects([body20])
doc.recompute()

boolean20 = body.newObject("PartDesign::Boolean", "Boolean019")
boolean20.Type = "Fuse"
boolean20.addObjects([body21])

sketch22 = body.newObject("Sketcher::SketchObject", "Sketch021")
sketch22.AttachmentSupport = (doc.getObject("XZ_Plane"), [""])
sketch22.MapMode = "FlatFace"
add_polygon(sketch22, [(11250, 3750), (11250, 4750), (11850, 4750), (11850, 3750)])
add_polygon(sketch22, [(8750, 3750), (8750, 4750), (9350, 4750), (9350, 3750)])
add_polygon(sketch22, [(11250, -4750), (11250, -3750), (11850, -3750), (11850, -4750)])
add_polygon(sketch22, [(8750, -4750), (8750, -3750), (9350, -3750), (9350, -4750)])
add_polygon(sketch22, [(6250, -4750), (6250, -3750), (6850, -3750), (6850, -4750)])
add_polygon(sketch22, [(6250, 3750), (6250, 4750), (6850, 4750), (6850, 3750)])
add_polygon(sketch22, [(3750, 3750), (3750, 4750), (4350, 4750), (4350, 3750)])
add_polygon(sketch22, [(1250, 3750), (1250, 4750), (1850, 4750), (1850, 3750)])
add_polygon(sketch22, [(-1850, 3750), (-1850, 4750), (-1250, 4750), (-1250, 3750)])
add_polygon(sketch22, [(-1850, -4750), (-1850, -3750), (-1250, -3750), (-1250, -4750)])
add_polygon(sketch22, [(1250, -4750), (1250, -3750), (1850, -3750), (1850, -4750)])
add_polygon(sketch22, [(3750, -4750), (3750, -3750), (4350, -3750), (4350, -4750)])
add_polygon(sketch22, [(-4350, 3750), (-4350, 4750), (-3750, 4750), (-3750, 3750)])
add_polygon(sketch22, [(-6850, 3750), (-6850, 4750), (-6250, 4750), (-6250, 3750)])
add_polygon(sketch22, [(-4350, -4750), (-4350, -3750), (-3750, -3750), (-3750, -4750)])
add_polygon(sketch22, [(-6850, -4750), (-6850, -3750), (-6250, -3750), (-6250, -4750)])
add_polygon(sketch22, [(-9350, -4750), (-9350, -3750), (-8750, -3750), (-8750, -4750)])
add_polygon(sketch22, [(-9350, 3750), (-9350, 4750), (-8750, 4750), (-8750, 3750)])
add_polygon(sketch22, [(-11850, 3750), (-11850, 4750), (-11250, 4750), (-11250, 3750)])
add_polygon(sketch22, [(-11850, -4750), (-11850, -3750), (-11250, -3750), (-11250, -4750)])
sketch22.addConstraint([
    Sketcher.Constraint("Vertical", 0),
    Sketcher.Constraint("Horizontal", 1),
    Sketcher.Constraint("Vertical", 2),
    Sketcher.Constraint("Horizontal", 3),
    Sketcher.Constraint("Vertical", 4),
    Sketcher.Constraint("Horizontal", 5),
    Sketcher.Constraint("Vertical", 6),
    Sketcher.Constraint("Horizontal", 7),
    Sketcher.Constraint("Vertical", 8),
    Sketcher.Constraint("Horizontal", 9),
    Sketcher.Constraint("Vertical", 10),
    Sketcher.Constraint("Horizontal", 11),
    Sketcher.Constraint("Vertical", 12),
    Sketcher.Constraint("Horizontal", 13),
    Sketcher.Constraint("Vertical", 14),
    Sketcher.Constraint("Horizontal", 15),
    Sketcher.Constraint("Vertical", 16),
    Sketcher.Constraint("Horizontal", 17),
    Sketcher.Constraint("Vertical", 18),
    Sketcher.Constraint("Horizontal", 19),
    Sketcher.Constraint("Vertical", 20),
    Sketcher.Constraint("Horizontal", 21),
    Sketcher.Constraint("Vertical", 22),
    Sketcher.Constraint("Horizontal", 23),
    Sketcher.Constraint("Vertical", 24),
    Sketcher.Constraint("Horizontal", 25),
    Sketcher.Constraint("Vertical", 26),
    Sketcher.Constraint("Horizontal", 27),
    Sketcher.Constraint("Vertical", 28),
    Sketcher.Constraint("Horizontal", 29),
    Sketcher.Constraint("Vertical", 30),
    Sketcher.Constraint("Horizontal", 31),
    Sketcher.Constraint("Vertical", 32),
    Sketcher.Constraint("Horizontal", 33),
    Sketcher.Constraint("Vertical", 34),
    Sketcher.Constraint("Horizontal", 35),
    Sketcher.Constraint("Vertical", 36),
    Sketcher.Constraint("Horizontal", 37),
    Sketcher.Constraint("Vertical", 38),
    Sketcher.Constraint("Horizontal", 39),
    Sketcher.Constraint("Vertical", 40),
    Sketcher.Constraint("Horizontal", 41),
    Sketcher.Constraint("Vertical", 42),
    Sketcher.Constraint("Horizontal", 43),
    Sketcher.Constraint("Vertical", 44),
    Sketcher.Constraint("Horizontal", 45),
    Sketcher.Constraint("Vertical", 46),
    Sketcher.Constraint("Horizontal", 47),
    Sketcher.Constraint("Vertical", 48),
    Sketcher.Constraint("Horizontal", 49),
    Sketcher.Constraint("Vertical", 50),
    Sketcher.Constraint("Horizontal", 51),
    Sketcher.Constraint("Vertical", 52),
    Sketcher.Constraint("Horizontal", 53),
    Sketcher.Constraint("Vertical", 54),
    Sketcher.Constraint("Horizontal", 55),
    Sketcher.Constraint("Vertical", 56),
    Sketcher.Constraint("Horizontal", 57),
    Sketcher.Constraint("Vertical", 58),
    Sketcher.Constraint("Horizontal", 59),
    Sketcher.Constraint("Vertical", 60),
    Sketcher.Constraint("Horizontal", 61),
    Sketcher.Constraint("Vertical", 62),
    Sketcher.Constraint("Horizontal", 63),
    Sketcher.Constraint("Vertical", 64),
    Sketcher.Constraint("Horizontal", 65),
    Sketcher.Constraint("Vertical", 66),
    Sketcher.Constraint("Horizontal", 67),
    Sketcher.Constraint("Vertical", 68),
    Sketcher.Constraint("Horizontal", 69),
    Sketcher.Constraint("Vertical", 70),
    Sketcher.Constraint("Horizontal", 71),
    Sketcher.Constraint("Vertical", 72),
    Sketcher.Constraint("Horizontal", 73),
    Sketcher.Constraint("Vertical", 74),
    Sketcher.Constraint("Horizontal", 75),
    Sketcher.Constraint("Vertical", 76),
    Sketcher.Constraint("Horizontal", 77),
    Sketcher.Constraint("Vertical", 78),
    Sketcher.Constraint("Horizontal", 79),
    Sketcher.Constraint("Symmetric", 30, 2, 36, 2, -1, 1),
    Sketcher.Constraint("Symmetric", 28, 2, 38, 2, -1, 1),
    Sketcher.Constraint("Symmetric", 34, 2, 40, 2, -1, 1),
    Sketcher.Constraint("Symmetric", 32, 2, 42, 2, -1, 1),
    Sketcher.Constraint("Symmetric", 46, 2, 48, 2, -1, 1),
    Sketcher.Constraint("Symmetric", 44, 2, 50, 2, -1, 1),
    Sketcher.Constraint("Symmetric", 18, 2, 52, 2, -1, 1),
    Sketcher.Constraint("Symmetric", 16, 2, 54, 2, -1, 1),
    Sketcher.Constraint("Symmetric", 26, 2, 56, 2, -1, 1),
    Sketcher.Constraint("Symmetric", 24, 2, 58, 2, -1, 1),
    Sketcher.Constraint("Symmetric", 22, 2, 60, 2, -1, 1),
    Sketcher.Constraint("Symmetric", 20, 2, 62, 2, -1, 1),
    Sketcher.Constraint("Symmetric", 6, 2, 64, 2, -1, 1),
    Sketcher.Constraint("Symmetric", 4, 2, 66, 2, -1, 1),
    Sketcher.Constraint("Symmetric", 14, 2, 68, 2, -1, 1),
    Sketcher.Constraint("Symmetric", 12, 2, 70, 2, -1, 1),
    Sketcher.Constraint("Symmetric", 10, 2, 72, 2, -1, 1),
    Sketcher.Constraint("Symmetric", 8, 2, 74, 2, -1, 1),
    Sketcher.Constraint("Symmetric", 2, 2, 76, 2, -1, 1),
    Sketcher.Constraint("Symmetric", 0, 2, 78, 2, -1, 1),
    Sketcher.Constraint("Symmetric", 29, 2, 32, 2, -2),
    Sketcher.Constraint("Symmetric", 31, 2, 34, 2, -2),
    Sketcher.Constraint("Symmetric", 25, 2, 48, 2, -2),
    Sketcher.Constraint("Symmetric", 27, 2, 50, 2, -2),
    Sketcher.Constraint("Symmetric", 21, 2, 52, 2, -2),
    Sketcher.Constraint("Symmetric", 23, 2, 54, 2, -2),
    Sketcher.Constraint("Symmetric", 13, 2, 64, 2, -2),
    Sketcher.Constraint("Symmetric", 15, 2, 66, 2, -2),
    Sketcher.Constraint("Symmetric", 1, 2, 72, 2, -2),
    Sketcher.Constraint("Symmetric", 3, 2, 74, 2, -2),
    Sketcher.Constraint("Horizontal", 1, 2, 4, 2),
    Sketcher.Constraint("Horizontal", 3, 2, 6, 2),
    Sketcher.Constraint("Horizontal", 13, 2, 16, 2),
    Sketcher.Constraint("Horizontal", 15, 2, 18, 2),
    Sketcher.Constraint("Horizontal", 21, 2, 24, 2),
    Sketcher.Constraint("Horizontal", 23, 2, 26, 2),
    Sketcher.Constraint("Horizontal", 25, 2, 28, 2),
    Sketcher.Constraint("Horizontal", 27, 2, 30, 2),
    Sketcher.Constraint("Equal", 3, 5),
    Sketcher.Constraint("Equal", 15, 17),
    Sketcher.Constraint("Equal", 23, 25),
    Sketcher.Constraint("Equal", 27, 29),
    Sketcher.Constraint("DistanceX", 1, 1, 1, 2, Q("600 mm")),
    Sketcher.Constraint("DistanceY", 0, 1, 0, 2, Q("1000 mm")),
    Sketcher.Constraint("DistanceX", -1, 1, 0, 2, Q("11250 mm")),
    Sketcher.Constraint("DistanceY", -1, 1, 0, 2, Q("4750 mm")),
    Sketcher.Constraint("DistanceX", -1, 1, 4, 2, Q("8750 mm")),
    Sketcher.Constraint("DistanceX", -1, 1, 16, 2, Q("6250 mm")),
    Sketcher.Constraint("DistanceX", -1, 1, 24, 2, Q("3750 mm")),
    Sketcher.Constraint("DistanceX", -1, 1, 28, 2, Q("1250 mm")),
])
pad22 = body.newObject("PartDesign::Pad", "Pad021")
pad22.Profile = sketch22
pad22.Length = 1015
pad22.Midplane = True
body22 = doc.addObject("PartDesign::Body", "Body021")

sketch23 = body22.newObject("Sketcher::SketchObject", "Sketch022")
sketch23.AttachmentSupport = (doc.getObject("XZ_Plane021"), [""])
sketch23.MapMode = "FlatFace"
add_polygon(sketch23, [(13750, 4750), (13750, 5750), (14350, 5750), (14350, 4750)])
sketch23.addConstraint([
    Sketcher.Constraint("Vertical", 0),
    Sketcher.Constraint("Horizontal", 1),
    Sketcher.Constraint("Vertical", 2),
    Sketcher.Constraint("Horizontal", 3),
    Sketcher.Constraint("DistanceX", 1, 1, 1, 2, Q("600 mm")),
    Sketcher.Constraint("DistanceY", 0, 1, 0, 2, Q("1000 mm")),
    Sketcher.Constraint("DistanceX", -1, 1, 0, 2, Q("13750 mm")),
    Sketcher.Constraint("DistanceY", -1, 1, 0, 2, Q("5750 mm")),
])
pad23 = body22.newObject("PartDesign::Pad", "Pad022")
pad23.Profile = sketch23
pad23.Type = "TwoLengths"
pad23.Length = 500
pad23.Length2 = 7501
pad23.Reversed = True
body23 = doc.addObject("PartDesign::Body", "Body022")

sketch24 = body23.newObject("Sketcher::SketchObject", "Sketch023")
sketch24.AttachmentSupport = (doc.getObject("XZ_Plane022"), [""])
sketch24.MapMode = "FlatFace"
add_polygon(sketch24, [(16250, 4750), (16250, 5750), (16850, 5750), (16850, 4750)])
sketch24.addConstraint([
    Sketcher.Constraint("Vertical", 0),
    Sketcher.Constraint("Horizontal", 1),
    Sketcher.Constraint("Vertical", 2),
    Sketcher.Constraint("Horizontal", 3),
    Sketcher.Constraint("DistanceX", 1, 1, 1, 2, Q("600 mm")),
    Sketcher.Constraint("DistanceY", 0, 1, 0, 2, Q("1000 mm")),
    Sketcher.Constraint("DistanceX", -1, 1, 0, 2, Q("16250 mm")),
    Sketcher.Constraint("DistanceY", -1, 1, 0, 2, Q("5750 mm")),
])
pad24 = body23.newObject("PartDesign::Pad", "Pad023")
pad24.Profile = sketch24
pad24.Type = "TwoLengths"
pad24.Length = 500
pad24.Length2 = 7501
pad24.Reversed = True
body24 = doc.addObject("PartDesign::Body", "Body023")

sketch25 = body24.newObject("Sketcher::SketchObject", "Sketch024")
sketch25.AttachmentSupport = (doc.getObject("XZ_Plane023"), [""])
sketch25.MapMode = "FlatFace"
add_polygon(sketch25, [(13750, -5750), (13750, -4750), (14350, -4750), (14350, -5750)])
sketch25.addConstraint([
    Sketcher.Constraint("Vertical", 0),
    Sketcher.Constraint("Horizontal", 1),
    Sketcher.Constraint("Vertical", 2),
    Sketcher.Constraint("Horizontal", 3),
    Sketcher.Constraint("DistanceX", 1, 1, 1, 2, Q("600 mm")),
    Sketcher.Constraint("DistanceY", 0, 1, 0, 2, Q("1000 mm")),
    Sketcher.Constraint("DistanceX", -1, 1, 0, 2, Q("13750 mm")),
    Sketcher.Constraint("DistanceY", 0, 2, -1, 1, Q("4750 mm")),
])
pad25 = body24.newObject("PartDesign::Pad", "Pad024")
pad25.Profile = sketch25
pad25.Type = "TwoLengths"
pad25.Length = 500
pad25.Length2 = 7501
pad25.Reversed = True
body25 = doc.addObject("PartDesign::Body", "Body024")

sketch26 = body25.newObject("Sketcher::SketchObject", "Sketch025")
sketch26.AttachmentSupport = (doc.getObject("XZ_Plane024"), [""])
sketch26.MapMode = "FlatFace"
add_polygon(sketch26, [(16250, -5750), (16250, -4750), (16850, -4750), (16850, -5750)])
sketch26.addConstraint([
    Sketcher.Constraint("Vertical", 0),
    Sketcher.Constraint("Horizontal", 1),
    Sketcher.Constraint("Vertical", 2),
    Sketcher.Constraint("Horizontal", 3),
    Sketcher.Constraint("DistanceX", 1, 1, 1, 2, Q("600 mm")),
    Sketcher.Constraint("DistanceY", 0, 1, 0, 2, Q("1000 mm")),
    Sketcher.Constraint("DistanceX", -1, 1, 0, 2, Q("16250 mm")),
    Sketcher.Constraint("DistanceY", 0, 2, -1, 1, Q("4750 mm")),
])
pad26 = body25.newObject("PartDesign::Pad", "Pad025")
pad26.Profile = sketch26
pad26.Type = "TwoLengths"
pad26.Length = 500
pad26.Length2 = 7501
pad26.Reversed = True
body.AllowCompound = True
doc.recompute()

boolean21 = body.newObject("PartDesign::Boolean", "Boolean020")
boolean21.Type = "Fuse"
boolean21.addObjects([body22])
doc.recompute()

boolean22 = body.newObject("PartDesign::Boolean", "Boolean021")
boolean22.Type = "Fuse"
boolean22.addObjects([body23])
doc.recompute()

boolean23 = body.newObject("PartDesign::Boolean", "Boolean022")
boolean23.Type = "Fuse"
boolean23.addObjects([body24])
doc.recompute()

boolean24 = body.newObject("PartDesign::Boolean", "Boolean023")
boolean24.Type = "Fuse"
boolean24.addObjects([body25])

sketch27 = body.newObject("Sketcher::SketchObject", "Sketch026")
sketch27.AttachmentSupport = (doc.getObject("XZ_Plane"), [""])
sketch27.MapMode = "FlatFace"
add_polygon(sketch27, [(13750, -4750), (13750, -3750), (14350, -3750), (14350, -4750)])
add_polygon(sketch27, [(16250, -4750), (16250, -3750), (16850, -3750), (16850, -4750)])
add_polygon(sketch27, [(13750, 3750), (13750, 4750), (14350, 4750), (14350, 3750)])
add_polygon(sketch27, [(16250, 3750), (16250, 4750), (16850, 4750), (16850, 3750)])
sketch27.addConstraint([
    Sketcher.Constraint("Vertical", 0),
    Sketcher.Constraint("Horizontal", 1),
    Sketcher.Constraint("Vertical", 2),
    Sketcher.Constraint("Horizontal", 3),
    Sketcher.Constraint("Vertical", 4),
    Sketcher.Constraint("Horizontal", 5),
    Sketcher.Constraint("Vertical", 6),
    Sketcher.Constraint("Horizontal", 7),
    Sketcher.Constraint("Vertical", 8),
    Sketcher.Constraint("Horizontal", 9),
    Sketcher.Constraint("Vertical", 10),
    Sketcher.Constraint("Horizontal", 11),
    Sketcher.Constraint("Vertical", 12),
    Sketcher.Constraint("Horizontal", 13),
    Sketcher.Constraint("Vertical", 14),
    Sketcher.Constraint("Horizontal", 15),
    Sketcher.Constraint("Symmetric", 3, 2, 8, 2, -1),
    Sketcher.Constraint("Symmetric", 1, 2, 10, 2, -1),
    Sketcher.Constraint("Symmetric", 7, 2, 12, 2, -1),
    Sketcher.Constraint("Symmetric", 5, 2, 14, 2, -1),
    Sketcher.Constraint("Horizontal", 1, 2, 4, 2),
    Sketcher.Constraint("Horizontal", 3, 2, 6, 2),
    Sketcher.Constraint("Equal", 3, 5),
    Sketcher.Constraint("DistanceX", 1, 1, 1, 2, Q("600 mm")),
    Sketcher.Constraint("DistanceY", 0, 1, 0, 2, Q("1000 mm")),
    Sketcher.Constraint("DistanceX", -1, 1, 0, 2, Q("13750 mm")),
    Sketcher.Constraint("DistanceY", 0, 2, -1, 1, Q("3750 mm")),
    Sketcher.Constraint("DistanceX", -1, 1, 4, 2, Q("16250 mm")),
])
pad27 = body.newObject("PartDesign::Pad", "Pad026")
pad27.Profile = sketch27
pad27.Length = 996
pad27.Midplane = True

doc.recompute()
